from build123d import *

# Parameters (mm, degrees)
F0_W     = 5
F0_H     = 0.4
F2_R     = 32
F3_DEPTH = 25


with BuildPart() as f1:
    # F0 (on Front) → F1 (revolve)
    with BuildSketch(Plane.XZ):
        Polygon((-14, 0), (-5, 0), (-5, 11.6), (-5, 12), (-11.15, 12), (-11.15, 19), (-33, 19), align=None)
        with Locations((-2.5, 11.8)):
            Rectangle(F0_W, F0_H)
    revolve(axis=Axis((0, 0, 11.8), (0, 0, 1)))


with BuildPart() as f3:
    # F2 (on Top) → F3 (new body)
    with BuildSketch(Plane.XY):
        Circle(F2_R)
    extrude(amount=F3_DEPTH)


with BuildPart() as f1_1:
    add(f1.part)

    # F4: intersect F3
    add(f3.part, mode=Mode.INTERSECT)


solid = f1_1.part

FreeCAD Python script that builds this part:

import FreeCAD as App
import Part
import Sketcher
Q = App.Units.Quantity

doc = App.newDocument("Part")
body = doc.addObject("PartDesign::Body", "Body")

# Sketch on XZ plane
sketch1 = body.newObject("Sketcher::SketchObject", "Sketch")
sketch1.AttachmentSupport = (doc.getObject("XZ_Plane"), [""])
sketch1.MapMode = "FlatFace"
sketch1.addGeometry(Part.LineSegment(App.Vector(-14, 0, 0), App.Vector(-5, 0, 0)), False)
sketch1.addGeometry(Part.LineSegment(App.Vector(-5, 0, 0), App.Vector(-5, 11.6, 0)), False)
sketch1.addGeometry(Part.LineSegment(App.Vector(-5, 11.6, 0), App.Vector(0, 11.6, 0)), False)
sketch1.addGeometry(Part.LineSegment(App.Vector(0, 11.6, 0), App.Vector(0, 12, 0)), False)
sketch1.addGeometry(Part.LineSegment(App.Vector(0, 12, 0), App.Vector(-11.15, 12, 0)), False)
sketch1.addGeometry(Part.LineSegment(App.Vector(-11.15, 12, 0), App.Vector(-11.15, 19, 0)), False)
sketch1.addGeometry(Part.LineSegment(App.Vector(-11.15, 19, 0), App.Vector(-33, 19, 0)), False)
sketch1.addGeometry(Part.LineSegment(App.Vector(-33, 19, 0), App.Vector(-14, 0, 0)), False)
sketch1.addConstraint(Sketcher.Constraint("Coincident", 0, 2, 1, 1))
sketch1.addConstraint(Sketcher.Constraint("Coincident", 1, 2, 2, 1))
sketch1.addConstraint(Sketcher.Constraint("Coincident", 2, 2, 3, 1))
sketch1.addConstraint(Sketcher.Constraint("Coincident", 3, 2, 4, 1))
sketch1.addConstraint(Sketcher.Constraint("Coincident", 4, 2, 5, 1))
sketch1.addConstraint(Sketcher.Constraint("Coincident", 5, 2, 6, 1))
sketch1.addConstraint(Sketcher.Constraint("Coincident", 6, 2, 7, 1))
sketch1.addConstraint(Sketcher.Constraint("Coincident", 7, 2, 0, 1))
sketch1.addConstraint(Sketcher.Constraint("Horizontal", 0))
sketch1.addConstraint(Sketcher.Constraint("Vertical", 1))
sketch1.addConstraint(Sketcher.Constraint("Horizontal", 2))
sketch1.addConstraint(Sketcher.Constraint("Vertical", 3))
sketch1.addConstraint(Sketcher.Constraint("Horizontal", 4))
sketch1.addConstraint(Sketcher.Constraint("Vertical", 5))
sketch1.addConstraint(Sketcher.Constraint("Horizontal", 6))
sketch1.addConstraint(Sketcher.Constraint("PointOnObject", 0, 2, -1))
sketch1.addConstraint(Sketcher.Constraint("PointOnObject", 2, 2, -2))
sketch1.addConstraint(Sketcher.Constraint("DistanceX", 0, 1, 0, 2, 9.0))
sketch1.addConstraint(Sketcher.Constraint("DistanceX", 2, 1, 2, 2, 5.0))
sketch1.addConstraint(Sketcher.Constraint("DistanceY", 5, 1, 5, 2, 7.0))
sketch1.addConstraint(Sketcher.Constraint("Angle", 7, Q("-45 deg")))
sketch1.addConstraint(Sketcher.Constraint("DistanceY", 1, 1, 1, 2, 11.6))
sketch1.addConstraint(Sketcher.Constraint("DistanceY", 3, 1, 3, 2, 0.4))
sketch1.addConstraint(Sketcher.Constraint("DistanceX", 4, 2, 4, 1, 11.15))
revolution = body.newObject("PartDesign::Revolution", "Revolution")
revolution.Profile = sketch1
revolution.ReferenceAxis = (sketch1, ["V_Axis"])
revolution.Angle = 360
body2 = doc.addObject("PartDesign::Body", "Body001")

# Sketch on XY plane
sketch2 = body2.newObject("Sketcher::SketchObject", "Sketch001")
sketch2.AttachmentSupport = (doc.getObject("XY_Plane001"), [""])
sketch2.MapMode = "FlatFace"
sketch2.addGeometry(Part.Circle(App.Vector(0, 0, 0), App.Vector(0, 0, 1), 32), False)
sketch2.addConstraint(Sketcher.Constraint("Coincident", 0, 3, -1, 1))
sketch2.addConstraint(Sketcher.Constraint("Diameter", 0, 64.0))
pad1 = body2.newObject("PartDesign::Pad", "Pad")
pad1.Profile = sketch2
pad1.Length = 25
doc.recompute()

boolean = body.newObject("PartDesign::Boolean", "Boolean")
boolean.Type = "Common"
boolean.addObjects([body2])

doc.recompute()
